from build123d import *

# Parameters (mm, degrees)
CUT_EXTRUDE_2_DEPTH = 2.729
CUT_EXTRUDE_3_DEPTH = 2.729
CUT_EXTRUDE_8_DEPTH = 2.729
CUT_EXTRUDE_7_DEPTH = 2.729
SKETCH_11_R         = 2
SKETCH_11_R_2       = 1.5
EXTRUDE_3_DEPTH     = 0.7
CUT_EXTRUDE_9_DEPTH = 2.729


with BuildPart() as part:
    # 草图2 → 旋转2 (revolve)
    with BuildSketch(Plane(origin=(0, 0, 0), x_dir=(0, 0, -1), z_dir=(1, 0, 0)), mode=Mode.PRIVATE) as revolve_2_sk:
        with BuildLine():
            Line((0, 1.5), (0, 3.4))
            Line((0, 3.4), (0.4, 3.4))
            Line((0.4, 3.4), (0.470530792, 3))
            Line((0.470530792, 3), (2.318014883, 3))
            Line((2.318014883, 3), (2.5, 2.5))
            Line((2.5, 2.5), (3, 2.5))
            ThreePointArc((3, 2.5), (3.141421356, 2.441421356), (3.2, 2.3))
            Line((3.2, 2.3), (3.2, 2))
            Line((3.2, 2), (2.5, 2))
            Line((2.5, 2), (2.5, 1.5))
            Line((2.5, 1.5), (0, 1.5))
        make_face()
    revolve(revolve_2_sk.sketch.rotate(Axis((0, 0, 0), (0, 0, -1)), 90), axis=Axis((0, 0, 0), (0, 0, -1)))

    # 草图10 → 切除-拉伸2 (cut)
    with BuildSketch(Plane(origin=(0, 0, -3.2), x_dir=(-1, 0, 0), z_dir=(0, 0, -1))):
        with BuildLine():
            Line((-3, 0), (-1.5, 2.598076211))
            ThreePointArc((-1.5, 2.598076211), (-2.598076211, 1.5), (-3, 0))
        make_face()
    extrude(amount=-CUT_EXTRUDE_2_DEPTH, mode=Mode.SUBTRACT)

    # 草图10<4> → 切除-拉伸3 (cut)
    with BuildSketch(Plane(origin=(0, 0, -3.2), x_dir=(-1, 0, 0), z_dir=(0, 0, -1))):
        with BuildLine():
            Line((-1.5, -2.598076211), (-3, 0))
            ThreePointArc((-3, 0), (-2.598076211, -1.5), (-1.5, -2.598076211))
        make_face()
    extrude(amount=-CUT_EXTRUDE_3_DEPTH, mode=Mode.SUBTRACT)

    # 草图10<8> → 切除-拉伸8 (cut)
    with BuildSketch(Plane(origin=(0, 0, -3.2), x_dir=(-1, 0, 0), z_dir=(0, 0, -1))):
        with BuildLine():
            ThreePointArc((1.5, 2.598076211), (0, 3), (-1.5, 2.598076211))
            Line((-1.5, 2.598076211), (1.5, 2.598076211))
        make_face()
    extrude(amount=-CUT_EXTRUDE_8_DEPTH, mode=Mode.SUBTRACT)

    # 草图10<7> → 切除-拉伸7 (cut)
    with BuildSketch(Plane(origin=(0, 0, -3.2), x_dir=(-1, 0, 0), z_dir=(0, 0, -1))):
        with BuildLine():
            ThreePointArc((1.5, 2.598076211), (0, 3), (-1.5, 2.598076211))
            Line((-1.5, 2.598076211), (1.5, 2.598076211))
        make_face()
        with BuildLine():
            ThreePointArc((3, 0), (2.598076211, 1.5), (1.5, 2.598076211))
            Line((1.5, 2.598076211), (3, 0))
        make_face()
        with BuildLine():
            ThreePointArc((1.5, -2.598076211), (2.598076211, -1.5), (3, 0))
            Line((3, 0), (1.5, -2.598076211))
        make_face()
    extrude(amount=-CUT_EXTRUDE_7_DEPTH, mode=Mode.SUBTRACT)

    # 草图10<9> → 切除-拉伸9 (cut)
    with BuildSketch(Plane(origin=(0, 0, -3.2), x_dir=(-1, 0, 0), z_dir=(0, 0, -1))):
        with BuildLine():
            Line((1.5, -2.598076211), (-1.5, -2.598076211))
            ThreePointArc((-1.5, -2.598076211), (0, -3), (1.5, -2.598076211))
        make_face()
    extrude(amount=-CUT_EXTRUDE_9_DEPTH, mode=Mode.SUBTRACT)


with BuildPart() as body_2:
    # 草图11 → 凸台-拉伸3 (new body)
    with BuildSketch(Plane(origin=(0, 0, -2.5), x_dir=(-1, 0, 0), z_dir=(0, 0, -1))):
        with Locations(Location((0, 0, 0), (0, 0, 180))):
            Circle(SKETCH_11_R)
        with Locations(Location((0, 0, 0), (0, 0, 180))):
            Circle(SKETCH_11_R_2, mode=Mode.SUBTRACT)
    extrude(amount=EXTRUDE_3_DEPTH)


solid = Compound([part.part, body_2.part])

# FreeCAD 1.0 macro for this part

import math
import FreeCAD as App
import Part
import Sketcher
Q = App.Units.Quantity

doc = App.newDocument("Part")
body = doc.addObject("PartDesign::Body", "Body")

# Sketch on YZ plane
sketch1 = doc.addObject("Sketcher::SketchObject", "Sketch")
body.addObject(sketch1)
sketch1.AttachmentSupport = (doc.YZ_Plane, [""])
sketch1.MapMode = "FlatFace"
sketch1.addGeometry([
    Part.LineSegment(App.Vector(3.4, 0, 0), App.Vector(1.5, 0, 0)),  # 0
    Part.LineSegment(App.Vector(1.5, 0, 0), App.Vector(1.5, -2.5, 0)),  # 1
    Part.LineSegment(App.Vector(1.5, -2.5, 0), App.Vector(2, -2.5, 0)),  # 2
    Part.LineSegment(App.Vector(2, -2.5, 0), App.Vector(2, -3.2, 0)),  # 3
    Part.LineSegment(App.Vector(2, -3.2, 0), App.Vector(2.3, -3.2, 0)),  # 4
    Part.ArcOfCircle(Part.Circle(App.Vector(2.3, -3, 0), App.Vector(0, 0, 1), 0.2), math.radians(-90), math.radians(0)),  # 5
    Part.LineSegment(App.Vector(2.5, -3, 0), App.Vector(2.5, -2.5, 0)),  # 6
    Part.LineSegment(App.Vector(2.5, -2.5, 0), App.Vector(3, -2.318015, 0)),  # 7
    Part.LineSegment(App.Vector(3, -2.318015, 0), App.Vector(3, -0.470531, 0)),  # 8
    Part.LineSegment(App.Vector(3, -0.470531, 0), App.Vector(3.4, -0.4, 0)),  # 9
    Part.LineSegment(App.Vector(3.4, -0.4, 0), App.Vector(3.4, 0, 0)),  # 10
], False)
sketch1.addConstraint([
    Sketcher.Constraint("Coincident", 0, 2, 1, 1),
    Sketcher.Constraint("Coincident", 1, 2, 2, 1),
    Sketcher.Constraint("Coincident", 2, 2, 3, 1),
    Sketcher.Constraint("Coincident", 3, 2, 4, 1),
    Sketcher.Constraint("Tangent", 4, 2, 5, 1),
    Sketcher.Constraint("Tangent", 5, 2, 6, 1),
    Sketcher.Constraint("Coincident", 6, 2, 7, 1),
    Sketcher.Constraint("Coincident", 7, 2, 8, 1),
    Sketcher.Constraint("Coincident", 8, 2, 9, 1),
    Sketcher.Constraint("Coincident", 9, 2, 10, 1),
    Sketcher.Constraint("Coincident", 10, 2, 0, 1),
    Sketcher.Constraint("Horizontal", 0),
    Sketcher.Constraint("Vertical", 1),
    Sketcher.Constraint("Horizontal", 2),
    Sketcher.Constraint("Vertical", 3),
    Sketcher.Constraint("Horizontal", 4),
    Sketcher.Constraint("Vertical", 6),
    Sketcher.Constraint("Vertical", 8),
    Sketcher.Constraint("Vertical", 10),
    Sketcher.Constraint("PointOnObject", 0, 2, -1),
    Sketcher.Constraint("Horizontal", 2, 2, 6, 2),
    Sketcher.Constraint("Equal", 2, 6),
    Sketcher.Constraint("Radius", 5, 0.2),
    Sketcher.Constraint("Angle", 7, Q("20 deg")),
    Sketcher.Constraint("Angle", 9, Q("10 deg")),
    Sketcher.Constraint("DistanceX", 0, 2, 0, 1, 1.9),
    Sketcher.Constraint("DistanceX", 2, 1, 2, 2, 0.5),
    Sketcher.Constraint("DistanceX", 4, 1, 4, 2, 0.3),
    Sketcher.Constraint("DistanceY", 1, 2, 1, 1, 2.5),
    Sketcher.Constraint("DistanceY", 10, 1, 10, 2, 0.4),
    Sketcher.Constraint("DistanceX", -1, 1, 2, 2, 2.0),
    Sketcher.Constraint("DistanceX", -1, 1, 7, 2, 3.0),
])
revolution = doc.addObject("PartDesign::Revolution", "Revolution")
body.addObject(revolution)
revolution.Profile = sketch1
revolution.ReferenceAxis = (sketch1, ["V_Axis"])
revolution.Angle = 360

# Sketch on XY plane
sketch2 = doc.addObject("Sketcher::SketchObject", "Sketch001")
body.addObject(sketch2)
sketch2.AttachmentSupport = (doc.XY_Plane, [""])
sketch2.MapMode = "FlatFace"
sketch2.AttachmentOffset = App.Placement(App.Vector(0, 0, -3.2), App.Rotation())
sketch2.addGeometry([
    Part.LineSegment(App.Vector(3, 0, 0), App.Vector(1.5, 2.598076, 0)),
    Part.ArcOfCircle(Part.Circle(App.Vector(0, 0, 0), App.Vector(0, 0, 1), 3), math.radians(0), math.radians(60)),
], False)
sketch2.addConstraint([
    Sketcher.Constraint("Coincident", 0, 1, 1, 1),
    Sketcher.Constraint("Coincident", 1, 2, 0, 2),
    Sketcher.Constraint("Coincident", 1, 3, -1, 1),
    Sketcher.Constraint("PointOnObject", 0, 1, -1),
    Sketcher.Constraint("Radius", 1, 3.0),
    Sketcher.Constraint("Angle", 0, Q("120 deg")),
])
pocket1 = doc.addObject("PartDesign::Pocket", "Pocket")
body.addObject(pocket1)
pocket1.Profile = sketch2
pocket1.Length = 2.729
pocket1.Reversed = True

# Sketch on XY plane
sketch3 = doc.addObject("Sketcher::SketchObject", "Sketch002")
body.addObject(sketch3)
sketch3.AttachmentSupport = (doc.XY_Plane, [""])
sketch3.MapMode = "FlatFace"
sketch3.AttachmentOffset = App.Placement(App.Vector(0, 0, -3.2), App.Rotation())
sketch3.addGeometry([
    Part.LineSegment(App.Vector(1.5, -2.598076, 0), App.Vector(3, 0, 0)),
    Part.ArcOfCircle(Part.Circle(App.Vector(0, 0, 0), App.Vector(0, 0, 1), 3), math.radians(-60), math.radians(0)),
], False)
sketch3.addConstraint([
    Sketcher.Constraint("Coincident", 0, 1, 1, 1),
    Sketcher.Constraint("Coincident", 1, 2, 0, 2),
    Sketcher.Constraint("Coincident", 1, 3, -1, 1),
    Sketcher.Constraint("PointOnObject", 1, 2, -1),
    Sketcher.Constraint("Radius", 1, 3.0),
    Sketcher.Constraint("Angle", 0, Q("60 deg")),
])
pocket2 = doc.addObject("PartDesign::Pocket", "Pocket001")
body.addObject(pocket2)
pocket2.Profile = sketch3
pocket2.Length = 2.729
pocket2.Reversed = True

# Sketch on XY plane
sketch4 = doc.addObject("Sketcher::SketchObject", "Sketch003")
body.addObject(sketch4)
sketch4.AttachmentSupport = (doc.XY_Plane, [""])
sketch4.MapMode = "FlatFace"
sketch4.AttachmentOffset = App.Placement(App.Vector(0, 0, -3.2), App.Rotation())
sketch4.addGeometry([
    Part.ArcOfCircle(Part.Circle(App.Vector(0, 0, 0), App.Vector(0, 0, 1), 3), math.radians(60), math.radians(120)),
    Part.LineSegment(App.Vector(1.5, 2.598076, 0), App.Vector(-1.5, 2.598076, 0)),
], False)
sketch4.addConstraint([
    Sketcher.Constraint("Coincident", 0, 1, 1, 1),
    Sketcher.Constraint("Coincident", 1, 2, 0, 2),
    Sketcher.Constraint("Horizontal", 1),
    Sketcher.Constraint("Coincident", 0, 3, -1, 1),
    Sketcher.Constraint("Radius", 0, 3.0),
    Sketcher.Constraint("DistanceX", 1, 2, 1, 1, 3.0),
])
pocket3 = doc.addObject("PartDesign::Pocket", "Pocket002")
body.addObject(pocket3)
pocket3.Profile = sketch4
pocket3.Length = 2.729
pocket3.Reversed = True

# Sketch on XY plane
sketch5 = doc.addObject("Sketcher::SketchObject", "Sketch004")
body.addObject(sketch5)
sketch5.AttachmentSupport = (doc.XY_Plane, [""])
sketch5.MapMode = "FlatFace"
sketch5.AttachmentOffset = App.Placement(App.Vector(0, 0, -3.2), App.Rotation())
sketch5.addGeometry([
    Part.ArcOfCircle(Part.Circle(App.Vector(0, 0, 0), App.Vector(0, 0, 1), 3), math.radians(60), math.radians(120)),  # 0
    Part.LineSegment(App.Vector(1.5, 2.598076, 0), App.Vector(-1.5, 2.598076, 0)),  # 1
    Part.ArcOfCircle(Part.Circle(App.Vector(0, 0, 0), App.Vector(0, 0, 1), 3), math.radians(120), math.radians(180)),  # 2
    Part.LineSegment(App.Vector(-1.5, 2.598076, 0), App.Vector(-3, 0, 0)),  # 3
    Part.ArcOfCircle(Part.Circle(App.Vector(0, 0, 0), App.Vector(0, 0, 1), 3), math.radians(-180), math.radians(-120)),  # 4
    Part.LineSegment(App.Vector(-3, 0, 0), App.Vector(-1.5, -2.598076, 0)),  # 5
], False)
sketch5.addConstraint([
    Sketcher.Constraint("Coincident", 0, 1, 1, 1),
    Sketcher.Constraint("Coincident", 1, 2, 0, 2),
    Sketcher.Constraint("Coincident", 2, 1, 3, 1),
    Sketcher.Constraint("Coincident", 3, 2, 2, 2),
    Sketcher.Constraint("Coincident", 4, 1, 5, 1),
    Sketcher.Constraint("Coincident", 5, 2, 4, 2),
    Sketcher.Constraint("Horizontal", 1),
    Sketcher.Constraint("Coincident", 0, 3, -1, 1),
    Sketcher.Constraint("Coincident", 2, 3, -1, 1),
    Sketcher.Constraint("Coincident", 4, 3, -1, 1),
    Sketcher.Constraint("Coincident", 2, 1, 1, 2),
    Sketcher.Constraint("Coincident", 4, 1, 3, 2),
    Sketcher.Constraint("PointOnObject", 3, 2, -1),
    Sketcher.Constraint("Vertical", 2, 1, 5, 2),
    Sketcher.Constraint("Radius", 0, 3.0),
    Sketcher.Constraint("DistanceX", 1, 2, 1, 1, 3.0),
])
pocket4 = doc.addObject("PartDesign::Pocket", "Pocket003")
body.addObject(pocket4)
pocket4.Profile = sketch5
pocket4.Length = 2.729
pocket4.Reversed = True

# Sketch on XY plane
sketch6 = doc.addObject("Sketcher::SketchObject", "Sketch005")
body.addObject(sketch6)
sketch6.AttachmentSupport = (doc.XY_Plane, [""])
sketch6.MapMode = "FlatFace"
sketch6.AttachmentOffset = App.Placement(App.Vector(0, 0, -3.2), App.Rotation())
sketch6.addGeometry([
    Part.LineSegment(App.Vector(-1.5, -2.598076, 0), App.Vector(1.5, -2.598076, 0)),
    Part.ArcOfCircle(Part.Circle(App.Vector(0, 0, 0), App.Vector(0, 0, 1), 3), math.radians(-120), math.radians(-60)),
], False)
sketch6.addConstraint([
    Sketcher.Constraint("Coincident", 0, 1, 1, 1),
    Sketcher.Constraint("Coincident", 1, 2, 0, 2),
    Sketcher.Constraint("Horizontal", 0),
    Sketcher.Constraint("Coincident", 1, 3, -1, 1),
    Sketcher.Constraint("Radius", 1, 3.0),
    Sketcher.Constraint("DistanceX", 0, 1, 0, 2, 3.0),
])
pocket5 = doc.addObject("PartDesign::Pocket", "Pocket004")
body.addObject(pocket5)
pocket5.Profile = sketch6
pocket5.Length = 2.729
pocket5.Reversed = True
body2 = doc.addObject("PartDesign::Body", "Body001")

# Sketch on XY plane
sketch7 = doc.addObject("Sketcher::SketchObject", "Sketch006")
body2.addObject(sketch7)
sketch7.AttachmentSupport = (doc.getObject("XY_Plane001"), [""])
sketch7.MapMode = "FlatFace"
sketch7.AttachmentOffset = App.Placement(App.Vector(0, 0, -2.5), App.Rotation())
sketch7.addGeometry([
    Part.Circle(App.Vector(0, 0, 0), App.Vector(0, 0, 1), 2),
    Part.Circle(App.Vector(0, 0, 0), App.Vector(0, 0, 1), 1.5),
], False)
sketch7.addConstraint([
    Sketcher.Constraint("Coincident", 0, 3, -1, 1),
    Sketcher.Constraint("Coincident", 1, 3, -1, 1),
    Sketcher.Constraint("Diameter", 0, 4.0),
    Sketcher.Constraint("Diameter", 1, 3.0),
])
pad1 = doc.addObject("PartDesign::Pad", "Pad")
body2.addObject(pad1)
pad1.Profile = sketch7
pad1.Length = 0.7
pad1.Reversed = True

doc.recompute()
